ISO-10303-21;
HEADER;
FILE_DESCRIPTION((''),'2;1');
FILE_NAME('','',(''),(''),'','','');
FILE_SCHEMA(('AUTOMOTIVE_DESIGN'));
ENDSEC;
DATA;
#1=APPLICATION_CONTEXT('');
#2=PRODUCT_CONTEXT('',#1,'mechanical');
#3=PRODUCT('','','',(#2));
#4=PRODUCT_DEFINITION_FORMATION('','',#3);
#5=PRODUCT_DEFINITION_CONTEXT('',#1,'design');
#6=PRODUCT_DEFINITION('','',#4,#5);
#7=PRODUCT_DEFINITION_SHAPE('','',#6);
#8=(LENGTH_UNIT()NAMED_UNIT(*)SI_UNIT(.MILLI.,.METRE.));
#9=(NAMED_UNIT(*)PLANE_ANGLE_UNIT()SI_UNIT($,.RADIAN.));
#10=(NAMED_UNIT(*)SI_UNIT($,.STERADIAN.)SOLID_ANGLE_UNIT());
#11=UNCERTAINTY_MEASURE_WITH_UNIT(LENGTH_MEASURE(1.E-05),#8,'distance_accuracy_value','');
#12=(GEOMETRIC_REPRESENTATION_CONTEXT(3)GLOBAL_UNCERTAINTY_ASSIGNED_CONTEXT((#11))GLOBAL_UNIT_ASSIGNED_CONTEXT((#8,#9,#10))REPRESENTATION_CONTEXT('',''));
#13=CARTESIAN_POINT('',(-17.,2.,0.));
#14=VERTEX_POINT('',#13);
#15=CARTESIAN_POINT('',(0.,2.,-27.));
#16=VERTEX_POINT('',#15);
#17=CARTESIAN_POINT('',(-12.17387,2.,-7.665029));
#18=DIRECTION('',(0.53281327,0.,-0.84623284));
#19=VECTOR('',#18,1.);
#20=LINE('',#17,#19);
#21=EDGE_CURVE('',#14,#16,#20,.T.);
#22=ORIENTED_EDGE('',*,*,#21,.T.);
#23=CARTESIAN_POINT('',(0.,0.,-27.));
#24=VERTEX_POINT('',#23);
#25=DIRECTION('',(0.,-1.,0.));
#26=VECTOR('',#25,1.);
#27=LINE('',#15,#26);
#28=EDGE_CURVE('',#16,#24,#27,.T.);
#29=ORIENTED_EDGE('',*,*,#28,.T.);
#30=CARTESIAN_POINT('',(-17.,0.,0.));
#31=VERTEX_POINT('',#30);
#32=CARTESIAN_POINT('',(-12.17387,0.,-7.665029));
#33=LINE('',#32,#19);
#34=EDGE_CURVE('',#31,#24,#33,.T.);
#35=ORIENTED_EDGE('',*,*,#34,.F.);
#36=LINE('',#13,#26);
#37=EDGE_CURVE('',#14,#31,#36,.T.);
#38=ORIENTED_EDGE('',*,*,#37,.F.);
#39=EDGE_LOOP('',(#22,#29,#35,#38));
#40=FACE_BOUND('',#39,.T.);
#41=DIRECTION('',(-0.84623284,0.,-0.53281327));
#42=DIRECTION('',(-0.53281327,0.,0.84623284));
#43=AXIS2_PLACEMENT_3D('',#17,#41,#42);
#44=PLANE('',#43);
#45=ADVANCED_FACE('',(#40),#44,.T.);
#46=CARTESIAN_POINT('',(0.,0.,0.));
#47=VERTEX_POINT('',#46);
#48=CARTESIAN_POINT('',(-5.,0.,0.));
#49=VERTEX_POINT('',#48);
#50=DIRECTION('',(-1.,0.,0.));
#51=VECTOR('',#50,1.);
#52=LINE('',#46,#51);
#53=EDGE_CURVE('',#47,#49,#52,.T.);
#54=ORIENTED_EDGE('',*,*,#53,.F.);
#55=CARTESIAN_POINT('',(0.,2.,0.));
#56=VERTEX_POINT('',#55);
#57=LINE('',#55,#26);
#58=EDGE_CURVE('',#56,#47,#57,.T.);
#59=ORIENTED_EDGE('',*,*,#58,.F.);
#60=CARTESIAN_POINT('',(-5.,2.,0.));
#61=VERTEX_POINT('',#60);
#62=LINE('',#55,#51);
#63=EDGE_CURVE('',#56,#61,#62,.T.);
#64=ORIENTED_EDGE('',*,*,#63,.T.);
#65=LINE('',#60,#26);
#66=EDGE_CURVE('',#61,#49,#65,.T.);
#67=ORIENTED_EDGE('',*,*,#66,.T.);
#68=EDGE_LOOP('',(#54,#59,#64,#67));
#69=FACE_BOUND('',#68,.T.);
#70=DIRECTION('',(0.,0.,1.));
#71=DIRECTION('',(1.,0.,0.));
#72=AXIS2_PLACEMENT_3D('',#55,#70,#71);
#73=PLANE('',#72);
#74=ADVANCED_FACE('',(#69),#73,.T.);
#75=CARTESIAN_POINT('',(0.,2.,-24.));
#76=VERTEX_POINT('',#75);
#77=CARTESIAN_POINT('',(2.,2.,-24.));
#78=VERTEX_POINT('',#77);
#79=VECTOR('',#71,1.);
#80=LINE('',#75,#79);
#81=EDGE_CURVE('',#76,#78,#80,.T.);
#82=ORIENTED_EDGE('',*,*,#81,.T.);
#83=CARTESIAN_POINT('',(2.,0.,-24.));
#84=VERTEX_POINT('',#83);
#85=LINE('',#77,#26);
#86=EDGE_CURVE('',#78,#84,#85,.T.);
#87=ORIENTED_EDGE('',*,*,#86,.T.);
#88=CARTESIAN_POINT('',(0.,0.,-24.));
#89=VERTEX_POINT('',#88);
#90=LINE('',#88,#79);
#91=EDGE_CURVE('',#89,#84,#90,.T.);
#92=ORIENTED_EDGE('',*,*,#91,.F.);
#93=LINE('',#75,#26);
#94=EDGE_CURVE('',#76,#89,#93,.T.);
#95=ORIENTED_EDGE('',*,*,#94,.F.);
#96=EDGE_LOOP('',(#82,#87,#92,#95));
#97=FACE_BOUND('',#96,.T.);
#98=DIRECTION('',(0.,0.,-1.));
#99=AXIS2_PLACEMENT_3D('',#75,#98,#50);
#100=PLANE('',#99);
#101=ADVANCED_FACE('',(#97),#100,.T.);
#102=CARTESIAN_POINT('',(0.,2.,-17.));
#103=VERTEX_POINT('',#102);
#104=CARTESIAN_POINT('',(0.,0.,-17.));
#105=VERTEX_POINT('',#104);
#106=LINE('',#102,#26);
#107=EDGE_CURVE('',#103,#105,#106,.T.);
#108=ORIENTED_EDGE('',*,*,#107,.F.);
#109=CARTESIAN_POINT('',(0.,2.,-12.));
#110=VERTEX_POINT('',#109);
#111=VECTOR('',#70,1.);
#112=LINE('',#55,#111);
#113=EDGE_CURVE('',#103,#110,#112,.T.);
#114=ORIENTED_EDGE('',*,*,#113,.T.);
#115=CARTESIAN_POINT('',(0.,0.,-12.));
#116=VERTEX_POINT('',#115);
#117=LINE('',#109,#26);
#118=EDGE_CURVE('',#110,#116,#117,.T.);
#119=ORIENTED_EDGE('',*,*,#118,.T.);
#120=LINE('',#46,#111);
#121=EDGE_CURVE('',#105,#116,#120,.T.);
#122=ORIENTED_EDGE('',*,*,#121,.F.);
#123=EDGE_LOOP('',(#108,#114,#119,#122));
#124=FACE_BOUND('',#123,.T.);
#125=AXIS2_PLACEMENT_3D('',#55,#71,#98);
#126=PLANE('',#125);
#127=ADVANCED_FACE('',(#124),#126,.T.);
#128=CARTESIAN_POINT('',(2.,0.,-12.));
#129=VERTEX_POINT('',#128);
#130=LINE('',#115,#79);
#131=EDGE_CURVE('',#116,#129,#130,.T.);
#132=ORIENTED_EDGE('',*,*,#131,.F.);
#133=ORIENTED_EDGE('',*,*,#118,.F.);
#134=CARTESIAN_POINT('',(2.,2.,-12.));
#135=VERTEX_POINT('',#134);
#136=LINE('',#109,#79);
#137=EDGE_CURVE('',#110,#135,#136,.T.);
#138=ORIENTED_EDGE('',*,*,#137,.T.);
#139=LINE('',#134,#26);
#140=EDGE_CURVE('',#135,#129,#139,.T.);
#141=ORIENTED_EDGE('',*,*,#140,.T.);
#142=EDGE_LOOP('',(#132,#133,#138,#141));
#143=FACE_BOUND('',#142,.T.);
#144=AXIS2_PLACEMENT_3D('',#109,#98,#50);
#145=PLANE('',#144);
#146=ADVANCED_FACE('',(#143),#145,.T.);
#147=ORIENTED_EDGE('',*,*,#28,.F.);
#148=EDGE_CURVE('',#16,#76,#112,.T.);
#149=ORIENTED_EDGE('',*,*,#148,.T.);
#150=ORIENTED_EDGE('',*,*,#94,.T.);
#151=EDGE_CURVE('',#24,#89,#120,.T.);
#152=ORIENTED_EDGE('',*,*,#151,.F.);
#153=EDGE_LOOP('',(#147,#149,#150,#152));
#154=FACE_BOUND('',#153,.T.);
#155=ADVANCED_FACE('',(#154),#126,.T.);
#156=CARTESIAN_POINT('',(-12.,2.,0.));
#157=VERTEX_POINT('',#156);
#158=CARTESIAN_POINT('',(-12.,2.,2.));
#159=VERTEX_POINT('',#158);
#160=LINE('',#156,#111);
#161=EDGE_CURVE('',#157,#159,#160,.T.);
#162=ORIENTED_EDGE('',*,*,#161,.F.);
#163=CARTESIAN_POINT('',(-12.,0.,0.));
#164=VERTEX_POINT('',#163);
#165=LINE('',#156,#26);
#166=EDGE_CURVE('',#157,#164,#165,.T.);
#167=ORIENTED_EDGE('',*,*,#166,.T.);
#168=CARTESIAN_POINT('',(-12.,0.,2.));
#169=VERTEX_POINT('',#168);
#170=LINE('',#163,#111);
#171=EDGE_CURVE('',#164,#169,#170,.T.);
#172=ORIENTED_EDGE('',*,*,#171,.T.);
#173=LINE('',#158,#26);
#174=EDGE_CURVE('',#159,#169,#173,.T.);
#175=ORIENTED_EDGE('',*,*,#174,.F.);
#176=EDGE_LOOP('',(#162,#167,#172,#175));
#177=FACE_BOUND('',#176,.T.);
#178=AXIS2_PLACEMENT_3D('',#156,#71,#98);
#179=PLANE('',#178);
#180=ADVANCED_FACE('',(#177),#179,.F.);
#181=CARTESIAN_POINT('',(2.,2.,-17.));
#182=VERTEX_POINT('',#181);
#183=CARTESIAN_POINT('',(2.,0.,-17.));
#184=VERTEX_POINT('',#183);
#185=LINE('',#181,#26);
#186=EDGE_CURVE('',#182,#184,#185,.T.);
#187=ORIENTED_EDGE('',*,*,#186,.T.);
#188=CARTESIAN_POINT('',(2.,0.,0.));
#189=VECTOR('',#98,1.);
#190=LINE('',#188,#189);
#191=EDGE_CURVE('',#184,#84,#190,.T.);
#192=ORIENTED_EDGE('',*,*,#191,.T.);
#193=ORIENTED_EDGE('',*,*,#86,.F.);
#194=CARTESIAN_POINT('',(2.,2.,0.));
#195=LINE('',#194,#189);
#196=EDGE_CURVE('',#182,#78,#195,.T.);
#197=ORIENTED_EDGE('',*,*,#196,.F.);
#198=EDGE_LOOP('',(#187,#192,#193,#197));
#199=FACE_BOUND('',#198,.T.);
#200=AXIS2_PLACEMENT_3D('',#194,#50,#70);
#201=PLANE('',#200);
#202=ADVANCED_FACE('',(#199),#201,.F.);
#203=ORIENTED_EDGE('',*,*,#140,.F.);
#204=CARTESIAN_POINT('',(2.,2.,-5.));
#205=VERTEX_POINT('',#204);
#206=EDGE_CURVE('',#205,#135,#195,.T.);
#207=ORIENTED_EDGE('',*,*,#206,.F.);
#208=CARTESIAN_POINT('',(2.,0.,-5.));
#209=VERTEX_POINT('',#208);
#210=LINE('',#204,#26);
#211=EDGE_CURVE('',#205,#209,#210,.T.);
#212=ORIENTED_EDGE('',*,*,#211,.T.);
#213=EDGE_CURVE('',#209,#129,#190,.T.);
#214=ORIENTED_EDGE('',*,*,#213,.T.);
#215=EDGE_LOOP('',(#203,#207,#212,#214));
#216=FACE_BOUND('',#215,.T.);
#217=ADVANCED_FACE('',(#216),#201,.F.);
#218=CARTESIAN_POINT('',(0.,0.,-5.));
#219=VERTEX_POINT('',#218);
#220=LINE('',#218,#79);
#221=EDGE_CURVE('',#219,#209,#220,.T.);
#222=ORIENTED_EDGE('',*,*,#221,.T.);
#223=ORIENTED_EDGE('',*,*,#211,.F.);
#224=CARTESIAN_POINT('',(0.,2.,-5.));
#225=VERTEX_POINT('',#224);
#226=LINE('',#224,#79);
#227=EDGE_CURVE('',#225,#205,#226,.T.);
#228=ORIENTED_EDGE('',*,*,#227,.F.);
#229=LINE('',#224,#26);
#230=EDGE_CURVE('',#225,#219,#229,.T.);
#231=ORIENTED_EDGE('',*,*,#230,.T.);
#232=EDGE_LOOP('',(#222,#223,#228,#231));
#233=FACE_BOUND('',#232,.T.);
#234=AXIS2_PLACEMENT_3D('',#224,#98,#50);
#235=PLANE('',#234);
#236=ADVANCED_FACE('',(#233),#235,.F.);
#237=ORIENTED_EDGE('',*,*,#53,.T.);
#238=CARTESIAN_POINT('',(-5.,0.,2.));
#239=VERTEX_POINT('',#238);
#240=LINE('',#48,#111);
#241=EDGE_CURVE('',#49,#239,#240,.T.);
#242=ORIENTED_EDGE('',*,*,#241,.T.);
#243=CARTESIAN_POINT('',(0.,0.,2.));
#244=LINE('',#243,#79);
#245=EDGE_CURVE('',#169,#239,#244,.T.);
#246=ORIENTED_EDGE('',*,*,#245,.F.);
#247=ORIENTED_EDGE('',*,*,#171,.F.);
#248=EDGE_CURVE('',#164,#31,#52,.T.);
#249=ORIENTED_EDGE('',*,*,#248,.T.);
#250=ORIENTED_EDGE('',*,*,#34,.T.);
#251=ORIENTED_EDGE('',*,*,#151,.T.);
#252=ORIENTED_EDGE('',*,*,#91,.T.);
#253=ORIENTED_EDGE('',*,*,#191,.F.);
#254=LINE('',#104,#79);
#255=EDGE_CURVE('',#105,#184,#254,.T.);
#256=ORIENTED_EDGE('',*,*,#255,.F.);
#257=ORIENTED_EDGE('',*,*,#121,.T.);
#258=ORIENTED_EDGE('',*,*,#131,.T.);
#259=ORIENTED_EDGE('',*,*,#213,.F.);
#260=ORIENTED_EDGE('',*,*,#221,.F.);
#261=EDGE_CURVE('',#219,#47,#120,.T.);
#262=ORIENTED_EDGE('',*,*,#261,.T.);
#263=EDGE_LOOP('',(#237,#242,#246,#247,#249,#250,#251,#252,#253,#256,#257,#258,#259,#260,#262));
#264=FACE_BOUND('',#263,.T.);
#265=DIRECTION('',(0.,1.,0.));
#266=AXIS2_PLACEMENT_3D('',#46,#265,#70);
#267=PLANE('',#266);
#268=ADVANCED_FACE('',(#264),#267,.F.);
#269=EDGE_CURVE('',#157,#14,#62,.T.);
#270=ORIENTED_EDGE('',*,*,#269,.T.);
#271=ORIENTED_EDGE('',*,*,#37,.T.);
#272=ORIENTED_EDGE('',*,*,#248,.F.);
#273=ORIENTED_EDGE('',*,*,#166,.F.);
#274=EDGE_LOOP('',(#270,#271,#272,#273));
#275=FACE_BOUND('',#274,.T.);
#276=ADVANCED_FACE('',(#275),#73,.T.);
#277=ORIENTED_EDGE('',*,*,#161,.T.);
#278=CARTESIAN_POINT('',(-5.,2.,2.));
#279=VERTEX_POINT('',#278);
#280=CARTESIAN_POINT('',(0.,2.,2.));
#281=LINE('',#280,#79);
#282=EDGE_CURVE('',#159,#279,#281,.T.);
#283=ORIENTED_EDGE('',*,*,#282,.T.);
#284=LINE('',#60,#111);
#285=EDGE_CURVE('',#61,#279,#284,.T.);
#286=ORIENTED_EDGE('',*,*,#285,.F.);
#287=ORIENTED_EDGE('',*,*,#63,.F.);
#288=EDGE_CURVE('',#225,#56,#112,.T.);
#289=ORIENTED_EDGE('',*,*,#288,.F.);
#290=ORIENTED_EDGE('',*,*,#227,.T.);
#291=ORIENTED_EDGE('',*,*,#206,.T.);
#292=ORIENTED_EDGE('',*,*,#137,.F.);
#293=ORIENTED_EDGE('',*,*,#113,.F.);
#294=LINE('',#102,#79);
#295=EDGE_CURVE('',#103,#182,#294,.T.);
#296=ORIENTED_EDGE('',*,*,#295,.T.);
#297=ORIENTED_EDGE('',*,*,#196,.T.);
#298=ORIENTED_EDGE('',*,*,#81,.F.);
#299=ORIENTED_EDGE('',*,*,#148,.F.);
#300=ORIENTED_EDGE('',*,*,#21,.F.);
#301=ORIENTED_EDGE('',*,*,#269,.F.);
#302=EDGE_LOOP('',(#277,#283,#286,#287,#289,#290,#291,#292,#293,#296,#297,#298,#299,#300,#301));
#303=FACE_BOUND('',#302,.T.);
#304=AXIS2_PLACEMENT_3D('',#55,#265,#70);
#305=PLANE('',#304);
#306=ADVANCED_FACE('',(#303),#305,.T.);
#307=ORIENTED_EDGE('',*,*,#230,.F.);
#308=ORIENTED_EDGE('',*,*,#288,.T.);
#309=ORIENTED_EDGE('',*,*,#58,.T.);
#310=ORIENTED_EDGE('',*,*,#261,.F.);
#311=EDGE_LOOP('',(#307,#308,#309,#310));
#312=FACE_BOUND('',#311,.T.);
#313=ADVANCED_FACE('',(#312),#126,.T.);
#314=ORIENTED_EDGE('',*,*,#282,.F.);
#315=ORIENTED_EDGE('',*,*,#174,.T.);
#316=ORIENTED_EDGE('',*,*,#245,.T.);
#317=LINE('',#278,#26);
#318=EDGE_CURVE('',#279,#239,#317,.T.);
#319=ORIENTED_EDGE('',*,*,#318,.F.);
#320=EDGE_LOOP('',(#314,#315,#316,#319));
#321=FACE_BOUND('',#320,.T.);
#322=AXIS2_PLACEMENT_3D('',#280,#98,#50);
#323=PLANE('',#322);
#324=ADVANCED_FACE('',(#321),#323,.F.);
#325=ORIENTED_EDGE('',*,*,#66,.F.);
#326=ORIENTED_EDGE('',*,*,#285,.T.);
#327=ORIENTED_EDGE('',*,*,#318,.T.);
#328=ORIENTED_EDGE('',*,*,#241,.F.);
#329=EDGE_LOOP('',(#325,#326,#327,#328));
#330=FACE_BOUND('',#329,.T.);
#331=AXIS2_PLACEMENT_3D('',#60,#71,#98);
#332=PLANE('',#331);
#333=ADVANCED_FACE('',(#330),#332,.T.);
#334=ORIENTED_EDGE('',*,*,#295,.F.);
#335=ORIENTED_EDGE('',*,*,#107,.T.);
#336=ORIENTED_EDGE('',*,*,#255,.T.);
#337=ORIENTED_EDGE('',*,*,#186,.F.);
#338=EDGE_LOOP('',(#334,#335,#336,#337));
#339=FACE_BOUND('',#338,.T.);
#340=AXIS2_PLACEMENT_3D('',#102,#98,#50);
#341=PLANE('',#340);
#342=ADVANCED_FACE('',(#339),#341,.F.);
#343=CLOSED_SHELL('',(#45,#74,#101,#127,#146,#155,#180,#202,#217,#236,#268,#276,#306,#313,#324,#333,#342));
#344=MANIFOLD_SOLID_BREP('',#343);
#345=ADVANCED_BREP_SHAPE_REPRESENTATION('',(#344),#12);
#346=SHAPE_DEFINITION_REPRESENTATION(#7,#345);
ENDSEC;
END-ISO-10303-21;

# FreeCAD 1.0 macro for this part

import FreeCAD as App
import Part
import Sketcher


def add_polygon(sketch, points):
    """Adds a closed chain of lines whose ends are joined by coincident constraints."""
    first, n = sketch.GeometryCount, len(points)
    for a, b in zip(points, points[1:] + points[:1]):
        sketch.addGeometry(Part.LineSegment(App.Vector(*a, 0), App.Vector(*b, 0)), False)
    for i in range(n):
        sketch.addConstraint(Sketcher.Constraint("Coincident", first + i, 2, first + (i + 1) % n, 1))

doc = App.newDocument("Part")
body = doc.addObject("PartDesign::Body", "Body")

# Sketch on XZ plane
sketch1 = body.newObject("Sketcher::SketchObject", "Sketch")
sketch1.AttachmentSupport = (doc.getObject("XZ_Plane"), [""])
sketch1.MapMode = "FlatFace"
add_polygon(sketch1, [(0, -24), (0, -27), (-17, 0), (-12, 0), (-12, 2), (-5, 2), (-5, 0), (0, 0), (0, -5), (2, -5), (2, -12), (0, -12), (0, -17), (2, -17), (2, -24)])  # lines 0-14
sketch1.addConstraint(Sketcher.Constraint("Vertical", 0))
sketch1.addConstraint(Sketcher.Constraint("Horizontal", 2))
sketch1.addConstraint(Sketcher.Constraint("Vertical", 3))
sketch1.addConstraint(Sketcher.Constraint("Horizontal", 4))
sketch1.addConstraint(Sketcher.Constraint("Vertical", 5))
sketch1.addConstraint(Sketcher.Constraint("Horizontal", 6))
sketch1.addConstraint(Sketcher.Constraint("Vertical", 7))
sketch1.addConstraint(Sketcher.Constraint("Horizontal", 8))
sketch1.addConstraint(Sketcher.Constraint("Vertical", 9))
sketch1.addConstraint(Sketcher.Constraint("Horizontal", 10))
sketch1.addConstraint(Sketcher.Constraint("Vertical", 11))
sketch1.addConstraint(Sketcher.Constraint("Horizontal", 12))
sketch1.addConstraint(Sketcher.Constraint("Vertical", 13))
sketch1.addConstraint(Sketcher.Constraint("Horizontal", 14))
sketch1.addConstraint(Sketcher.Constraint("Coincident", 6, 2, -1, 1))
sketch1.addConstraint(Sketcher.Constraint("PointOnObject", 0, 2, -2))
sketch1.addConstraint(Sketcher.Constraint("PointOnObject", 1, 2, -1))
sketch1.addConstraint(Sketcher.Constraint("PointOnObject", 10, 2, -2))
sketch1.addConstraint(Sketcher.Constraint("Vertical", 9, 2, 12, 2))
sketch1.addConstraint(Sketcher.Constraint("Equal", 2, 6))
sketch1.addConstraint(Sketcher.Constraint("Equal", 14, 3))
sketch1.addConstraint(Sketcher.Constraint("Equal", 6, 7))
sketch1.addConstraint(Sketcher.Constraint("Equal", 4, 9))
sketch1.addConstraint(Sketcher.Constraint("Equal", 7, 11))
sketch1.addConstraint(Sketcher.Constraint("Equal", 9, 13))
sketch1.addConstraint(Sketcher.Constraint("DistanceX", 2, 1, 2, 2, 5.0))
sketch1.addConstraint(Sketcher.Constraint("DistanceX", 4, 1, 4, 2, 7.0))
sketch1.addConstraint(Sketcher.Constraint("DistanceX", 8, 1, 8, 2, 2.0))
sketch1.addConstraint(Sketcher.Constraint("DistanceY", 0, 2, 0, 1, 3.0))
pad1 = body.newObject("PartDesign::Pad", "Pad")
pad1.Profile = sketch1
pad1.Length = 2
pad1.Reversed = True

doc.recompute()
